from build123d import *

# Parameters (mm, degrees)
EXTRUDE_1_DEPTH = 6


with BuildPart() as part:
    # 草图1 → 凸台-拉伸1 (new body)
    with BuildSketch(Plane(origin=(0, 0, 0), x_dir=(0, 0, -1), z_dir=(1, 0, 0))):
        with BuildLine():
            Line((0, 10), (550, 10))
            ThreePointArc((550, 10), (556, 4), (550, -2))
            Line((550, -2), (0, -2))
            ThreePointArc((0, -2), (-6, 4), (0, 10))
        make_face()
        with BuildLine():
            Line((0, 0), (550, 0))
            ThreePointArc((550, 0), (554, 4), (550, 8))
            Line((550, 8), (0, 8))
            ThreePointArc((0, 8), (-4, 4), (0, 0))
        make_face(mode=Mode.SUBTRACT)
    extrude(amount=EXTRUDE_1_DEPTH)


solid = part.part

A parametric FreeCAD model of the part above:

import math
import FreeCAD as App
import Part
import Sketcher

doc = App.newDocument("Part")
body = doc.addObject("PartDesign::Body", "Body")

# Sketch on YZ plane
sketch1 = body.newObject("Sketcher::SketchObject", "Sketch")
sketch1.AttachmentSupport = (doc.getObject("YZ_Plane"), [""])
sketch1.MapMode = "FlatFace"
sketch1.addGeometry([
    Part.LineSegment(App.Vector(10, -550, 0), App.Vector(10, 0, 0)),  # 0
    Part.ArcOfCircle(Part.Circle(App.Vector(4, 0, 0), App.Vector(0, 0, 1), 6), math.radians(0), math.radians(180)),  # 1
    Part.LineSegment(App.Vector(-2, 0, 0), App.Vector(-2, -550, 0)),  # 2
    Part.ArcOfCircle(Part.Circle(App.Vector(4, -550, 0), App.Vector(0, 0, 1), 6), math.radians(180), math.radians(360)),  # 3
    Part.ArcOfCircle(Part.Circle(App.Vector(4, 0, 0), App.Vector(0, 0, 1), 4), math.radians(0), math.radians(180)),  # 4
    Part.LineSegment(App.Vector(8, 0, 0), App.Vector(8, -550, 0)),  # 5
    Part.ArcOfCircle(Part.Circle(App.Vector(4, -550, 0), App.Vector(0, 0, 1), 4), math.radians(180), math.radians(360)),  # 6
    Part.LineSegment(App.Vector(0, -550, 0), App.Vector(0, 0, 0)),  # 7
], False)
sketch1.addConstraint([
    Sketcher.Constraint("Tangent", 0, 2, 1, 1),
    Sketcher.Constraint("Tangent", 1, 2, 2, 1),
    Sketcher.Constraint("Tangent", 2, 2, 3, 1),
    Sketcher.Constraint("Tangent", 3, 2, 0, 1),
    Sketcher.Constraint("Tangent", 4, 1, 5, 1),
    Sketcher.Constraint("Tangent", 5, 2, 6, 2),
    Sketcher.Constraint("Tangent", 6, 1, 7, 1),
    Sketcher.Constraint("Tangent", 7, 2, 4, 2),
    Sketcher.Constraint("Vertical", 0),
    Sketcher.Constraint("Vertical", 2),
    Sketcher.Constraint("Vertical", 5),
    Sketcher.Constraint("Vertical", 7),
    Sketcher.Constraint("Coincident", 7, 2, -1, 1),
    Sketcher.Constraint("Coincident", 4, 3, 1, 3),
    Sketcher.Constraint("Horizontal", 6, 3, 2, 2),
    Sketcher.Constraint("Radius", 1, 6.0),
    Sketcher.Constraint("Radius", 4, 4.0),
    Sketcher.Constraint("DistanceY", 0, 1, 0, 2, 550.0),
])
pad1 = body.newObject("PartDesign::Pad", "Pad")
pad1.Profile = sketch1
pad1.Length = 6

doc.recompute()
